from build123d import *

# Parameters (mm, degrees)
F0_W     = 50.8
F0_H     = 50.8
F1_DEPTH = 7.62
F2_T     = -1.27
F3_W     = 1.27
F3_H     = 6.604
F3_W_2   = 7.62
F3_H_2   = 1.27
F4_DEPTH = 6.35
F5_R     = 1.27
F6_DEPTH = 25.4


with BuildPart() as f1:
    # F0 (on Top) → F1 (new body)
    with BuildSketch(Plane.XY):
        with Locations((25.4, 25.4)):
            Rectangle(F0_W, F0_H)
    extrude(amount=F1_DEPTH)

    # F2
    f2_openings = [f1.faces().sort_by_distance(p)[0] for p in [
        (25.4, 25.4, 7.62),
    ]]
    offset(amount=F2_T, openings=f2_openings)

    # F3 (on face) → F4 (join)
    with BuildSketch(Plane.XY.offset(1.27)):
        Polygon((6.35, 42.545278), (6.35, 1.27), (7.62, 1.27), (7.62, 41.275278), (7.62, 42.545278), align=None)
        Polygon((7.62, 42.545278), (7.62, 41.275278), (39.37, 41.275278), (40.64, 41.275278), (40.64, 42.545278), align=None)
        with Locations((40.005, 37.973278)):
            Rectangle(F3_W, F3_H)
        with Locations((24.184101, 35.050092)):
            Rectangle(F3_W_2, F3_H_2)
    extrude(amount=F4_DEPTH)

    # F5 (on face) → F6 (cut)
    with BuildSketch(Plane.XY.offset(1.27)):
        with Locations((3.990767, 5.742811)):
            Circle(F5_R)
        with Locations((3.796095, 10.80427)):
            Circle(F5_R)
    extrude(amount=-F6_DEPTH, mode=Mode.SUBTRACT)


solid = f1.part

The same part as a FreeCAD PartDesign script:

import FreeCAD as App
import Part
import Sketcher
Q = App.Units.Quantity


def faces_at(feature, points):
    """Names of the faces that lie closest to the given points."""
    faces = feature.Shape.Faces
    near = lambda p: min(range(len(faces)), key=lambda i: faces[i].distToShape(Part.Vertex(*p))[0])
    return sorted({f"Face{near(p) + 1}" for p in points})


def add_polygon(sketch, points):
    """Adds a closed chain of lines whose ends are joined by coincident constraints."""
    first, n = sketch.GeometryCount, len(points)
    for a, b in zip(points, points[1:] + points[:1]):
        sketch.addGeometry(Part.LineSegment(App.Vector(*a, 0), App.Vector(*b, 0)), False)
    for i in range(n):
        sketch.addConstraint(Sketcher.Constraint("Coincident", first + i, 2, first + (i + 1) % n, 1))

doc = App.newDocument("Part")
body = doc.addObject("PartDesign::Body", "Body")

sketch1 = body.newObject("Sketcher::SketchObject", "Sketch")
sketch1.AttachmentSupport = (doc.getObject("XY_Plane"), [""])
sketch1.MapMode = "FlatFace"
add_polygon(sketch1, [(0, 51), (0, 0), (51, 0), (51, 51)])
sketch1.addConstraint(Sketcher.Constraint("Vertical", 0))
sketch1.addConstraint(Sketcher.Constraint("Horizontal", 1))
sketch1.addConstraint(Sketcher.Constraint("Vertical", 2))
sketch1.addConstraint(Sketcher.Constraint("Horizontal", 3))
sketch1.addConstraint(Sketcher.Constraint("Coincident", 0, 2, -1, 1))
sketch1.addConstraint(Sketcher.Constraint("Equal", 3, 0))
sketch1.addConstraint(Sketcher.Constraint("DistanceX", 1, 1, 1, 2, Q("2 in")))
pad1 = body.newObject("PartDesign::Pad", "Pad")
pad1.Profile = sketch1
pad1.Length = Q("0.3 in")
doc.recompute()

thickness = body.newObject("PartDesign::Thickness", "Thickness")
thickness.Base = (pad1, faces_at(pad1, [(25.4, 25.4, 7.62)]))
thickness.Value = Q("0.05 in")
thickness.Reversed = True
thickness.Join = "Arc"

sketch2 = body.newObject("Sketcher::SketchObject", "Sketch001")
sketch2.AttachmentSupport = (doc.getObject("XY_Plane"), [""])
sketch2.MapMode = "FlatFace"
sketch2.AttachmentOffset = App.Placement(App.Vector(0, 0, 0.05 * 25.4), App.Rotation())
add_polygon(sketch2, [(6.3, 42.5), (6.3, 1.3), (7.6, 1.3), (7.6, 41.3), (39.4, 41.3), (39.4, 34.7), (40.6, 34.7), (40.6, 42.5)])
add_polygon(sketch2, [(20.4, 35.7), (20.4, 34.4), (28, 34.4), (28, 35.7)])
sketch2.addConstraint(Sketcher.Constraint("Vertical", 0))
sketch2.addConstraint(Sketcher.Constraint("Horizontal", 1))
sketch2.addConstraint(Sketcher.Constraint("Vertical", 2))
sketch2.addConstraint(Sketcher.Constraint("Horizontal", 3))
sketch2.addConstraint(Sketcher.Constraint("Vertical", 4))
sketch2.addConstraint(Sketcher.Constraint("Horizontal", 5))
sketch2.addConstraint(Sketcher.Constraint("Vertical", 6))
sketch2.addConstraint(Sketcher.Constraint("Horizontal", 7))
sketch2.addConstraint(Sketcher.Constraint("Vertical", 8))
sketch2.addConstraint(Sketcher.Constraint("Horizontal", 9))
sketch2.addConstraint(Sketcher.Constraint("Vertical", 10))
sketch2.addConstraint(Sketcher.Constraint("Horizontal", 11))
sketch2.addConstraint(Sketcher.Constraint("Equal", 1, 5))
sketch2.addConstraint(Sketcher.Constraint("Equal", 5, 8))
sketch2.addConstraint(Sketcher.Constraint("DistanceX", 9, 1, 9, 2, Q("0.3 in")))
sketch2.addConstraint(Sketcher.Constraint("DistanceX", 1, 1, 1, 2, Q("0.05 in")))
sketch2.addConstraint(Sketcher.Constraint("DistanceX", 3, 1, 3, 2, Q("1.25 in")))
sketch2.addConstraint(Sketcher.Constraint("DistanceY", 4, 2, 4, 1, Q("0.26 in")))
sketch2.addConstraint(Sketcher.Constraint("DistanceY", 6, 1, 6, 2, Q("0.31 in")))
sketch2.addConstraint(Sketcher.Constraint("DistanceX", -1, 1, 1, 2, Q("0.3 in")))
sketch2.addConstraint(Sketcher.Constraint("DistanceY", -1, 1, 0, 2, Q("0.05 in")))
sketch2.addConstraint(Sketcher.Constraint("DistanceX", -1, 1, 8, 2, 20.374101))
sketch2.addConstraint(Sketcher.Constraint("DistanceY", 0, 2, 0, 1, 41.275278))
sketch2.addConstraint(Sketcher.Constraint("DistanceY", -1, 1, 10, 2, 35.685092))
pad2 = body.newObject("PartDesign::Pad", "Pad001")
pad2.Profile = sketch2
pad2.Length = Q("0.25 in")

sketch3 = body.newObject("Sketcher::SketchObject", "Sketch002")
sketch3.AttachmentSupport = (doc.getObject("XY_Plane"), [""])
sketch3.MapMode = "FlatFace"
sketch3.AttachmentOffset = App.Placement(App.Vector(0, 0, 0.05 * 25.4), App.Rotation())
sketch3.addGeometry(Part.Circle(App.Vector(4, 5.7, 0), App.Vector(0, 0, 1), 1.3), False)
sketch3.addGeometry(Part.Circle(App.Vector(3.8, 10.8, 0), App.Vector(0, 0, 1), 1.3), False)
sketch3.addConstraint(Sketcher.Constraint("Equal", 0, 1))
sketch3.addConstraint(Sketcher.Constraint("Diameter", 0, Q("0.1 in")))
sketch3.addConstraint(Sketcher.Constraint("DistanceY", -1, 1, 0, 3, 5.742811))
sketch3.addConstraint(Sketcher.Constraint("DistanceY", -1, 1, 1, 3, 10.80427))
sketch3.addConstraint(Sketcher.Constraint("DistanceX", 1, 3, 0, 3, 0.194672))
sketch3.addConstraint(Sketcher.Constraint("DistanceX", -1, 1, 0, 3, 3.990767))
pocket1 = body.newObject("PartDesign::Pocket", "Pocket")
pocket1.Profile = sketch3
pocket1.Length = Q("1 in")

doc.recompute()
